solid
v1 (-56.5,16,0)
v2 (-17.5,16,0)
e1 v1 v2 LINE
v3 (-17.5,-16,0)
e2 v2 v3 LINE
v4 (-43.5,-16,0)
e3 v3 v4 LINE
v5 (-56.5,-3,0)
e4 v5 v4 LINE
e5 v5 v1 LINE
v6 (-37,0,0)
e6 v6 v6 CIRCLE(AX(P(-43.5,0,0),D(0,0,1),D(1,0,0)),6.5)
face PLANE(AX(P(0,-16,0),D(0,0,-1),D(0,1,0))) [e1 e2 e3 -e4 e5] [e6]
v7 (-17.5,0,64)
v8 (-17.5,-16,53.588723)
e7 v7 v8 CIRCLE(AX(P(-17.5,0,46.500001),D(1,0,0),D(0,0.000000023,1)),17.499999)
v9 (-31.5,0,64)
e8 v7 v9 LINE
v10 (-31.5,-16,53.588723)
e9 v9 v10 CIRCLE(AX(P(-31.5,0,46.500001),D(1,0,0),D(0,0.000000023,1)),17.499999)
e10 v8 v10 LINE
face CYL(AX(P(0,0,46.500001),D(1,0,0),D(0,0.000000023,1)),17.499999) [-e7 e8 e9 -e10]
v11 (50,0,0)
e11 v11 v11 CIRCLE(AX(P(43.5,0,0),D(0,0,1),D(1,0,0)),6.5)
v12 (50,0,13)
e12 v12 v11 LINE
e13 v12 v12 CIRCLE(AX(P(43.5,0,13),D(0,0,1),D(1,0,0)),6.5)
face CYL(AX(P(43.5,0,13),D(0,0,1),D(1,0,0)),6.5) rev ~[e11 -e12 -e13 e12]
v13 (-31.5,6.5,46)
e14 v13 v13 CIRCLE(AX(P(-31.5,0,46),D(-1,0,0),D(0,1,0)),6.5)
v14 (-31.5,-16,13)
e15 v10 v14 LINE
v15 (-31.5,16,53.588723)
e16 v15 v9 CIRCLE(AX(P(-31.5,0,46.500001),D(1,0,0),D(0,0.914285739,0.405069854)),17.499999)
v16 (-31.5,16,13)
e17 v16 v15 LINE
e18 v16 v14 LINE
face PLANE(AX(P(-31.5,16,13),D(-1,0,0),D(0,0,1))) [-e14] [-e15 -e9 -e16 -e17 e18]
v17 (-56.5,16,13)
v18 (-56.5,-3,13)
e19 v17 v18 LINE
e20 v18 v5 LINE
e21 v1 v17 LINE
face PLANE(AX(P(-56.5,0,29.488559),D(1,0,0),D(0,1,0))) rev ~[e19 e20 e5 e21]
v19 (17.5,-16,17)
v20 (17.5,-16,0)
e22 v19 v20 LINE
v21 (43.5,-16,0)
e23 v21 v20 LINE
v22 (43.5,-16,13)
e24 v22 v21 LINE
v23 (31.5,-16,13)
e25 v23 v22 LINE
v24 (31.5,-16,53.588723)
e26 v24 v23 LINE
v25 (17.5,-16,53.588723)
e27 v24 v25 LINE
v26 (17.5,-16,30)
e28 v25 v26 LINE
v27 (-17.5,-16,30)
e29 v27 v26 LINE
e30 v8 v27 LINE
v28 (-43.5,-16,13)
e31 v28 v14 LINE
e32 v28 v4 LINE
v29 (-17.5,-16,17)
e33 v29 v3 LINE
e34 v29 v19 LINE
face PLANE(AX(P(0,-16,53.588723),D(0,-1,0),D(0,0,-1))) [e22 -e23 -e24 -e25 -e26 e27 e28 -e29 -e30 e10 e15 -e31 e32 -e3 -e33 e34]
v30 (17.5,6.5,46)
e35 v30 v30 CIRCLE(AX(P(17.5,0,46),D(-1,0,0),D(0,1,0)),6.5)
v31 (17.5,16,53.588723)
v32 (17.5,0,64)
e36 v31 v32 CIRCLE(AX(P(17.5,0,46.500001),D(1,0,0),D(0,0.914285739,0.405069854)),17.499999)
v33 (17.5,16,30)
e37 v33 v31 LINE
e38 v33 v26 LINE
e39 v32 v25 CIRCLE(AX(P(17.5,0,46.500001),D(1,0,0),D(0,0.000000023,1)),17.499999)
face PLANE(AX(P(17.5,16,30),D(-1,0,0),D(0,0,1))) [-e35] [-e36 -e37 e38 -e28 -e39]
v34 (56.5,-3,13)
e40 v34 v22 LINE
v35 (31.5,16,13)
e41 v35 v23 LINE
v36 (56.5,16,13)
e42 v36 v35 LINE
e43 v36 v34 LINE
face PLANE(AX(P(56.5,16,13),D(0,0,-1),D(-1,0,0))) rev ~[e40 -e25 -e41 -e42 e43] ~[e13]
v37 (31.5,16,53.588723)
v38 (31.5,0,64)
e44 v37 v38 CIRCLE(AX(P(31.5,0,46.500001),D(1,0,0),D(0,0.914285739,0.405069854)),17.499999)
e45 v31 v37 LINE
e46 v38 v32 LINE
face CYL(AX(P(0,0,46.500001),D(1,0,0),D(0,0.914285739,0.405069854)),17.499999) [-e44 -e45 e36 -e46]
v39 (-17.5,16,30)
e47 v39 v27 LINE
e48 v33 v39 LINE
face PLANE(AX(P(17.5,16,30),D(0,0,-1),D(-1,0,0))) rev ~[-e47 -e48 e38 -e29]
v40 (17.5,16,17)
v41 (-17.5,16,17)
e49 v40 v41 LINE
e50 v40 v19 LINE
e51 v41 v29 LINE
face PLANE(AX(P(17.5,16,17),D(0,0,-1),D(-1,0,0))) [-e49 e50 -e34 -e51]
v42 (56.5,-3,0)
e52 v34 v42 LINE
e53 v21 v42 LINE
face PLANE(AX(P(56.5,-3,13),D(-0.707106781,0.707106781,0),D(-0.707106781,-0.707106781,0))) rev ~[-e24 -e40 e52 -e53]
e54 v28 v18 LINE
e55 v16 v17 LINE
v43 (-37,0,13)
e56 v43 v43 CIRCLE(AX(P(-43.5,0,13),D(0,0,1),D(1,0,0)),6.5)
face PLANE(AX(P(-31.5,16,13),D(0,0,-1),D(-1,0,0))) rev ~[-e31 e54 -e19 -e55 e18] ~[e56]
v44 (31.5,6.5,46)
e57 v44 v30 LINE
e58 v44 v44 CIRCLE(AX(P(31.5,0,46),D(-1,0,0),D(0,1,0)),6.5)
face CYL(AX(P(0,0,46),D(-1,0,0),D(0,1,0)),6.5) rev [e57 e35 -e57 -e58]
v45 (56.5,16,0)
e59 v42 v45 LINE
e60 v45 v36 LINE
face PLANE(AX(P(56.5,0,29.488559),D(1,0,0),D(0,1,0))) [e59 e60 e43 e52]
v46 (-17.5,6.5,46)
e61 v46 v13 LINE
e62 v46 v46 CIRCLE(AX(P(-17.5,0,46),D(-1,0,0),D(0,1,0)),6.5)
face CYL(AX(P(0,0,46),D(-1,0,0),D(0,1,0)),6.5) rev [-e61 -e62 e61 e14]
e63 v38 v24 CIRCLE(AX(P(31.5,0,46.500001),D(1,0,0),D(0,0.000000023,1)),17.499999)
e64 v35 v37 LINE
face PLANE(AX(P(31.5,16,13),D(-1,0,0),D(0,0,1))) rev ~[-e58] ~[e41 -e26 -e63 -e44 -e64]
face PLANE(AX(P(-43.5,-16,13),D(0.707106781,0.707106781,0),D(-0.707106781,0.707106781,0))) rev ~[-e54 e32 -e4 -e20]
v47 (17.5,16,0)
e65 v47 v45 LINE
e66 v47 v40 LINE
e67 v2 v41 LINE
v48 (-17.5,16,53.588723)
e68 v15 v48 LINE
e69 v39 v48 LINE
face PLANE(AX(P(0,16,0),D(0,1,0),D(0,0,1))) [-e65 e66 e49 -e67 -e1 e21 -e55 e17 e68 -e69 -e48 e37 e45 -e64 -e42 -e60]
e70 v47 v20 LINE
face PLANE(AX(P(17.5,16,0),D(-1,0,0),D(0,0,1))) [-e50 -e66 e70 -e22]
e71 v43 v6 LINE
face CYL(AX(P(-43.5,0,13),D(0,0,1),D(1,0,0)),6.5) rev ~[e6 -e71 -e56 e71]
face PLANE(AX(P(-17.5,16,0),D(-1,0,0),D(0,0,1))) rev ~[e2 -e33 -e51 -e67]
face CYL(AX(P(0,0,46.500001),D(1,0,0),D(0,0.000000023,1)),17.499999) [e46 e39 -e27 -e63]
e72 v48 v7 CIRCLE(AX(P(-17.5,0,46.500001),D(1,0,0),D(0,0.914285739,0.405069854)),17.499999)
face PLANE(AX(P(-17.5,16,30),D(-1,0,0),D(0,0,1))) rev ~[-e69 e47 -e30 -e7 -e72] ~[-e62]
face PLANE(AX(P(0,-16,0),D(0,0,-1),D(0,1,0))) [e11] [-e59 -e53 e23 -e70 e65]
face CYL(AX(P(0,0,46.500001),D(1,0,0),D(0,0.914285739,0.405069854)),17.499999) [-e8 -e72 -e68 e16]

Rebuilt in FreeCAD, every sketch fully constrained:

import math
import FreeCAD as App
import Part
import Sketcher
Q = App.Units.Quantity

doc = App.newDocument("Part")
body = doc.addObject("PartDesign::Body", "Body")

# Sketch on YZ plane
sketch1 = body.newObject("Sketcher::SketchObject", "Sketch")
sketch1.AttachmentSupport = (doc.getObject("YZ_Plane"), [""])
sketch1.MapMode = "FlatFace"
sketch1.addGeometry(Part.LineSegment(App.Vector(-16, 0, 0), App.Vector(16, 0, 0)), False)
sketch1.addGeometry(Part.LineSegment(App.Vector(16, 0, 0), App.Vector(16, 54, 0)), False)
sketch1.addGeometry(Part.ArcOfCircle(Part.Circle(App.Vector(0, 47, 0), App.Vector(0, 0, 1), 17), math.radians(24), math.radians(90)), False)
sketch1.addGeometry(Part.ArcOfCircle(Part.Circle(App.Vector(0, 47, 0), App.Vector(0, 0, 1), 17), math.radians(90), math.radians(156)), False)
sketch1.addGeometry(Part.LineSegment(App.Vector(-16, 54, 0), App.Vector(-16, 0, 0)), False)
sketch1.addGeometry(Part.Circle(App.Vector(0, 46, 0), App.Vector(0, 0, 1), 6), False)
sketch1.addConstraint(Sketcher.Constraint("Coincident", 0, 2, 1, 1))
sketch1.addConstraint(Sketcher.Constraint("Coincident", 1, 2, 2, 1))
sketch1.addConstraint(Sketcher.Constraint("Tangent", 2, 2, 3, 1))
sketch1.addConstraint(Sketcher.Constraint("Coincident", 3, 2, 4, 1))
sketch1.addConstraint(Sketcher.Constraint("Coincident", 4, 2, 0, 1))
sketch1.addConstraint(Sketcher.Constraint("Horizontal", 0))
sketch1.addConstraint(Sketcher.Constraint("Vertical", 1))
sketch1.addConstraint(Sketcher.Constraint("Vertical", 4))
sketch1.addConstraint(Sketcher.Constraint("Equal", 2, 3))
sketch1.addConstraint(Sketcher.Constraint("Symmetric", 0, 2, 4, 2, -1, 1))
sketch1.addConstraint(Sketcher.Constraint("PointOnObject", 2, 3, -2))
sketch1.addConstraint(Sketcher.Constraint("PointOnObject", 5, 3, -2))
sketch1.addConstraint(Sketcher.Constraint("PointOnObject", 2, 2, -2))
sketch1.addConstraint(Sketcher.Constraint("Diameter", 5, Q("13 mm")))
sketch1.addConstraint(Sketcher.Constraint("Radius", 2, Q("17.499999 mm")))
sketch1.addConstraint(Sketcher.Constraint("DistanceX", 0, 1, 0, 2, Q("32 mm")))
sketch1.addConstraint(Sketcher.Constraint("DistanceY", -1, 1, 5, 3, Q("46 mm")))
sketch1.addConstraint(Sketcher.Constraint("DistanceY", -1, 1, 2, 2, Q("64 mm")))
pad1 = body.newObject("PartDesign::Pad", "Pad")
pad1.Profile = sketch1
pad1.Length = 113
pad1.Midplane = True

# Sketch on XZ plane
sketch2 = body.newObject("Sketcher::SketchObject", "Sketch001")
sketch2.AttachmentSupport = (doc.getObject("XZ_Plane"), [""])
sketch2.MapMode = "FlatFace"
sketch2.AttachmentOffset = App.Placement(App.Vector(0, 0, -16), App.Rotation())
sketch2.addGeometry(Part.LineSegment(App.Vector(-32, 64, 0), App.Vector(-32, 13, 0)), False)
sketch2.addGeometry(Part.LineSegment(App.Vector(-32, 13, 0), App.Vector(-56, 13, 0)), False)
sketch2.addGeometry(Part.LineSegment(App.Vector(-56, 13, 0), App.Vector(-56, 64, 0)), False)
sketch2.addGeometry(Part.LineSegment(App.Vector(-56, 64, 0), App.Vector(-32, 64, 0)), False)
sketch2.addGeometry(Part.LineSegment(App.Vector(56, 64, 0), App.Vector(56, 13, 0)), False)
sketch2.addGeometry(Part.LineSegment(App.Vector(56, 13, 0), App.Vector(32, 13, 0)), False)
sketch2.addGeometry(Part.LineSegment(App.Vector(32, 13, 0), App.Vector(32, 64, 0)), False)
sketch2.addGeometry(Part.LineSegment(App.Vector(32, 64, 0), App.Vector(56, 64, 0)), False)
sketch2.addGeometry(Part.LineSegment(App.Vector(18, 17, 0), App.Vector(18, 0, 0)), False)
sketch2.addGeometry(Part.LineSegment(App.Vector(18, 0, 0), App.Vector(-18, 0, 0)), False)
sketch2.addGeometry(Part.LineSegment(App.Vector(-18, 0, 0), App.Vector(-18, 17, 0)), False)
sketch2.addGeometry(Part.LineSegment(App.Vector(-18, 17, 0), App.Vector(18, 17, 0)), False)
sketch2.addGeometry(Part.LineSegment(App.Vector(18, 64, 0), App.Vector(18, 30, 0)), False)
sketch2.addGeometry(Part.LineSegment(App.Vector(18, 30, 0), App.Vector(-18, 30, 0)), False)
sketch2.addGeometry(Part.LineSegment(App.Vector(-18, 30, 0), App.Vector(-18, 64, 0)), False)
sketch2.addGeometry(Part.LineSegment(App.Vector(-18, 64, 0), App.Vector(18, 64, 0)), False)
sketch2.addConstraint(Sketcher.Constraint("Coincident", 0, 2, 1, 1))
sketch2.addConstraint(Sketcher.Constraint("Coincident", 1, 2, 2, 1))
sketch2.addConstraint(Sketcher.Constraint("Coincident", 2, 2, 3, 1))
sketch2.addConstraint(Sketcher.Constraint("Coincident", 3, 2, 0, 1))
sketch2.addConstraint(Sketcher.Constraint("Coincident", 4, 2, 5, 1))
sketch2.addConstraint(Sketcher.Constraint("Coincident", 5, 2, 6, 1))
sketch2.addConstraint(Sketcher.Constraint("Coincident", 6, 2, 7, 1))
sketch2.addConstraint(Sketcher.Constraint("Coincident", 7, 2, 4, 1))
sketch2.addConstraint(Sketcher.Constraint("Coincident", 8, 2, 9, 1))
sketch2.addConstraint(Sketcher.Constraint("Coincident", 9, 2, 10, 1))
sketch2.addConstraint(Sketcher.Constraint("Coincident", 10, 2, 11, 1))
sketch2.addConstraint(Sketcher.Constraint("Coincident", 11, 2, 8, 1))
sketch2.addConstraint(Sketcher.Constraint("Coincident", 12, 2, 13, 1))
sketch2.addConstraint(Sketcher.Constraint("Coincident", 13, 2, 14, 1))
sketch2.addConstraint(Sketcher.Constraint("Coincident", 14, 2, 15, 1))
sketch2.addConstraint(Sketcher.Constraint("Coincident", 15, 2, 12, 1))
sketch2.addConstraint(Sketcher.Constraint("Vertical", 0))
sketch2.addConstraint(Sketcher.Constraint("Horizontal", 1))
sketch2.addConstraint(Sketcher.Constraint("Vertical", 2))
sketch2.addConstraint(Sketcher.Constraint("Horizontal", 3))
sketch2.addConstraint(Sketcher.Constraint("Vertical", 4))
sketch2.addConstraint(Sketcher.Constraint("Horizontal", 5))
sketch2.addConstraint(Sketcher.Constraint("Vertical", 6))
sketch2.addConstraint(Sketcher.Constraint("Horizontal", 7))
sketch2.addConstraint(Sketcher.Constraint("Vertical", 8))
sketch2.addConstraint(Sketcher.Constraint("Horizontal", 9))
sketch2.addConstraint(Sketcher.Constraint("Vertical", 10))
sketch2.addConstraint(Sketcher.Constraint("Horizontal", 11))
sketch2.addConstraint(Sketcher.Constraint("Vertical", 12))
sketch2.addConstraint(Sketcher.Constraint("Horizontal", 13))
sketch2.addConstraint(Sketcher.Constraint("Vertical", 14))
sketch2.addConstraint(Sketcher.Constraint("Horizontal", 15))
sketch2.addConstraint(Sketcher.Constraint("Symmetric", 8, 2, 9, 2, -1, 1))
sketch2.addConstraint(Sketcher.Constraint("Symmetric", 1, 2, 4, 2, -2))
sketch2.addConstraint(Sketcher.Constraint("Symmetric", 3, 2, 6, 2, -2))
sketch2.addConstraint(Sketcher.Constraint("Horizontal", 7, 2, 14, 2))
sketch2.addConstraint(Sketcher.Constraint("Vertical", 11, 2, 12, 2))
sketch2.addConstraint(Sketcher.Constraint("Vertical", 10, 2, 13, 2))
sketch2.addConstraint(Sketcher.Constraint("DistanceX", 1, 2, 1, 1, Q("25 mm")))
sketch2.addConstraint(Sketcher.Constraint("DistanceX", 9, 2, 9, 1, Q("35 mm")))
sketch2.addConstraint(Sketcher.Constraint("DistanceY", 0, 2, 0, 1, Q("51 mm")))
sketch2.addConstraint(Sketcher.Constraint("DistanceY", 8, 2, 8, 1, Q("17 mm")))
sketch2.addConstraint(Sketcher.Constraint("DistanceY", 12, 2, 12, 1, Q("34 mm")))
sketch2.addConstraint(Sketcher.Constraint("DistanceY", -1, 1, 0, 2, Q("13 mm")))
sketch2.addConstraint(Sketcher.Constraint("DistanceX", 0, 2, 4, 2, Q("88 mm")))
pocket1 = body.newObject("PartDesign::Pocket", "Pocket")
pocket1.Profile = sketch2
pocket1.Type = "ThroughAll"
pocket1.Reversed = True

# Sketch on XY plane
sketch3 = body.newObject("Sketcher::SketchObject", "Sketch002")
sketch3.AttachmentSupport = (doc.getObject("XY_Plane"), [""])
sketch3.MapMode = "FlatFace"
sketch3.AttachmentOffset = App.Placement(App.Vector(0, 0, 13), App.Rotation())
sketch3.addGeometry(Part.Circle(App.Vector(-44, 0, 0), App.Vector(0, 0, 1), 6), False)
sketch3.addGeometry(Part.LineSegment(App.Vector(-56, -3, 0), App.Vector(-56, -16, 0)), False)
sketch3.addGeometry(Part.LineSegment(App.Vector(-56, -16, 0), App.Vector(-44, -16, 0)), False)
sketch3.addGeometry(Part.LineSegment(App.Vector(-44, -16, 0), App.Vector(-56, -3, 0)), False)
sketch3.addConstraint(Sketcher.Constraint("Coincident", 1, 2, 2, 1))
sketch3.addConstraint(Sketcher.Constraint("Coincident", 2, 2, 3, 1))
sketch3.addConstraint(Sketcher.Constraint("Coincident", 3, 2, 1, 1))
sketch3.addConstraint(Sketcher.Constraint("Vertical", 1))
sketch3.addConstraint(Sketcher.Constraint("Horizontal", 2))
sketch3.addConstraint(Sketcher.Constraint("PointOnObject", 0, 3, -1))
sketch3.addConstraint(Sketcher.Constraint("Vertical", 0, 3, 2, 2))
sketch3.addConstraint(Sketcher.Constraint("Equal", 2, 1))
sketch3.addConstraint(Sketcher.Constraint("Diameter", 0, Q("13 mm")))
sketch3.addConstraint(Sketcher.Constraint("DistanceX", 2, 1, 2, 2, Q("13 mm")))
sketch3.addConstraint(Sketcher.Constraint("DistanceY", 1, 2, -1, 1, Q("16 mm")))
sketch3.addConstraint(Sketcher.Constraint("DistanceX", 0, 3, -1, 1, Q("43.5 mm")))
pocket2 = body.newObject("PartDesign::Pocket", "Pocket001")
pocket2.Profile = sketch3
pocket2.Type = "ThroughAll"

# Sketch on XY plane
sketch4 = body.newObject("Sketcher::SketchObject", "Sketch003")
sketch4.AttachmentSupport = (doc.getObject("XY_Plane"), [""])
sketch4.MapMode = "FlatFace"
sketch4.AttachmentOffset = App.Placement(App.Vector(0, 0, 13), App.Rotation())
sketch4.addGeometry(Part.Circle(App.Vector(44, 0, 0), App.Vector(0, 0, 1), 6), False)
sketch4.addGeometry(Part.LineSegment(App.Vector(56, -3, 0), App.Vector(44, -16, 0)), False)
sketch4.addGeometry(Part.LineSegment(App.Vector(44, -16, 0), App.Vector(56, -16, 0)), False)
sketch4.addGeometry(Part.LineSegment(App.Vector(56, -16, 0), App.Vector(56, -3, 0)), False)
sketch4.addConstraint(Sketcher.Constraint("Coincident", 1, 2, 2, 1))
sketch4.addConstraint(Sketcher.Constraint("Coincident", 2, 2, 3, 1))
sketch4.addConstraint(Sketcher.Constraint("Coincident", 3, 2, 1, 1))
sketch4.addConstraint(Sketcher.Constraint("Horizontal", 2))
sketch4.addConstraint(Sketcher.Constraint("Vertical", 3))
sketch4.addConstraint(Sketcher.Constraint("PointOnObject", 0, 3, -1))
sketch4.addConstraint(Sketcher.Constraint("Vertical", 0, 3, 1, 2))
sketch4.addConstraint(Sketcher.Constraint("Equal", 2, 3))
sketch4.addConstraint(Sketcher.Constraint("Diameter", 0, Q("13 mm")))
sketch4.addConstraint(Sketcher.Constraint("DistanceX", 2, 1, 2, 2, Q("13 mm")))
sketch4.addConstraint(Sketcher.Constraint("DistanceY", 1, 2, -1, 1, Q("16 mm")))
sketch4.addConstraint(Sketcher.Constraint("DistanceX", -1, 1, 0, 3, Q("43.5 mm")))
pocket3 = body.newObject("PartDesign::Pocket", "Pocket002")
pocket3.Profile = sketch4
pocket3.Type = "ThroughAll"

doc.recompute()
